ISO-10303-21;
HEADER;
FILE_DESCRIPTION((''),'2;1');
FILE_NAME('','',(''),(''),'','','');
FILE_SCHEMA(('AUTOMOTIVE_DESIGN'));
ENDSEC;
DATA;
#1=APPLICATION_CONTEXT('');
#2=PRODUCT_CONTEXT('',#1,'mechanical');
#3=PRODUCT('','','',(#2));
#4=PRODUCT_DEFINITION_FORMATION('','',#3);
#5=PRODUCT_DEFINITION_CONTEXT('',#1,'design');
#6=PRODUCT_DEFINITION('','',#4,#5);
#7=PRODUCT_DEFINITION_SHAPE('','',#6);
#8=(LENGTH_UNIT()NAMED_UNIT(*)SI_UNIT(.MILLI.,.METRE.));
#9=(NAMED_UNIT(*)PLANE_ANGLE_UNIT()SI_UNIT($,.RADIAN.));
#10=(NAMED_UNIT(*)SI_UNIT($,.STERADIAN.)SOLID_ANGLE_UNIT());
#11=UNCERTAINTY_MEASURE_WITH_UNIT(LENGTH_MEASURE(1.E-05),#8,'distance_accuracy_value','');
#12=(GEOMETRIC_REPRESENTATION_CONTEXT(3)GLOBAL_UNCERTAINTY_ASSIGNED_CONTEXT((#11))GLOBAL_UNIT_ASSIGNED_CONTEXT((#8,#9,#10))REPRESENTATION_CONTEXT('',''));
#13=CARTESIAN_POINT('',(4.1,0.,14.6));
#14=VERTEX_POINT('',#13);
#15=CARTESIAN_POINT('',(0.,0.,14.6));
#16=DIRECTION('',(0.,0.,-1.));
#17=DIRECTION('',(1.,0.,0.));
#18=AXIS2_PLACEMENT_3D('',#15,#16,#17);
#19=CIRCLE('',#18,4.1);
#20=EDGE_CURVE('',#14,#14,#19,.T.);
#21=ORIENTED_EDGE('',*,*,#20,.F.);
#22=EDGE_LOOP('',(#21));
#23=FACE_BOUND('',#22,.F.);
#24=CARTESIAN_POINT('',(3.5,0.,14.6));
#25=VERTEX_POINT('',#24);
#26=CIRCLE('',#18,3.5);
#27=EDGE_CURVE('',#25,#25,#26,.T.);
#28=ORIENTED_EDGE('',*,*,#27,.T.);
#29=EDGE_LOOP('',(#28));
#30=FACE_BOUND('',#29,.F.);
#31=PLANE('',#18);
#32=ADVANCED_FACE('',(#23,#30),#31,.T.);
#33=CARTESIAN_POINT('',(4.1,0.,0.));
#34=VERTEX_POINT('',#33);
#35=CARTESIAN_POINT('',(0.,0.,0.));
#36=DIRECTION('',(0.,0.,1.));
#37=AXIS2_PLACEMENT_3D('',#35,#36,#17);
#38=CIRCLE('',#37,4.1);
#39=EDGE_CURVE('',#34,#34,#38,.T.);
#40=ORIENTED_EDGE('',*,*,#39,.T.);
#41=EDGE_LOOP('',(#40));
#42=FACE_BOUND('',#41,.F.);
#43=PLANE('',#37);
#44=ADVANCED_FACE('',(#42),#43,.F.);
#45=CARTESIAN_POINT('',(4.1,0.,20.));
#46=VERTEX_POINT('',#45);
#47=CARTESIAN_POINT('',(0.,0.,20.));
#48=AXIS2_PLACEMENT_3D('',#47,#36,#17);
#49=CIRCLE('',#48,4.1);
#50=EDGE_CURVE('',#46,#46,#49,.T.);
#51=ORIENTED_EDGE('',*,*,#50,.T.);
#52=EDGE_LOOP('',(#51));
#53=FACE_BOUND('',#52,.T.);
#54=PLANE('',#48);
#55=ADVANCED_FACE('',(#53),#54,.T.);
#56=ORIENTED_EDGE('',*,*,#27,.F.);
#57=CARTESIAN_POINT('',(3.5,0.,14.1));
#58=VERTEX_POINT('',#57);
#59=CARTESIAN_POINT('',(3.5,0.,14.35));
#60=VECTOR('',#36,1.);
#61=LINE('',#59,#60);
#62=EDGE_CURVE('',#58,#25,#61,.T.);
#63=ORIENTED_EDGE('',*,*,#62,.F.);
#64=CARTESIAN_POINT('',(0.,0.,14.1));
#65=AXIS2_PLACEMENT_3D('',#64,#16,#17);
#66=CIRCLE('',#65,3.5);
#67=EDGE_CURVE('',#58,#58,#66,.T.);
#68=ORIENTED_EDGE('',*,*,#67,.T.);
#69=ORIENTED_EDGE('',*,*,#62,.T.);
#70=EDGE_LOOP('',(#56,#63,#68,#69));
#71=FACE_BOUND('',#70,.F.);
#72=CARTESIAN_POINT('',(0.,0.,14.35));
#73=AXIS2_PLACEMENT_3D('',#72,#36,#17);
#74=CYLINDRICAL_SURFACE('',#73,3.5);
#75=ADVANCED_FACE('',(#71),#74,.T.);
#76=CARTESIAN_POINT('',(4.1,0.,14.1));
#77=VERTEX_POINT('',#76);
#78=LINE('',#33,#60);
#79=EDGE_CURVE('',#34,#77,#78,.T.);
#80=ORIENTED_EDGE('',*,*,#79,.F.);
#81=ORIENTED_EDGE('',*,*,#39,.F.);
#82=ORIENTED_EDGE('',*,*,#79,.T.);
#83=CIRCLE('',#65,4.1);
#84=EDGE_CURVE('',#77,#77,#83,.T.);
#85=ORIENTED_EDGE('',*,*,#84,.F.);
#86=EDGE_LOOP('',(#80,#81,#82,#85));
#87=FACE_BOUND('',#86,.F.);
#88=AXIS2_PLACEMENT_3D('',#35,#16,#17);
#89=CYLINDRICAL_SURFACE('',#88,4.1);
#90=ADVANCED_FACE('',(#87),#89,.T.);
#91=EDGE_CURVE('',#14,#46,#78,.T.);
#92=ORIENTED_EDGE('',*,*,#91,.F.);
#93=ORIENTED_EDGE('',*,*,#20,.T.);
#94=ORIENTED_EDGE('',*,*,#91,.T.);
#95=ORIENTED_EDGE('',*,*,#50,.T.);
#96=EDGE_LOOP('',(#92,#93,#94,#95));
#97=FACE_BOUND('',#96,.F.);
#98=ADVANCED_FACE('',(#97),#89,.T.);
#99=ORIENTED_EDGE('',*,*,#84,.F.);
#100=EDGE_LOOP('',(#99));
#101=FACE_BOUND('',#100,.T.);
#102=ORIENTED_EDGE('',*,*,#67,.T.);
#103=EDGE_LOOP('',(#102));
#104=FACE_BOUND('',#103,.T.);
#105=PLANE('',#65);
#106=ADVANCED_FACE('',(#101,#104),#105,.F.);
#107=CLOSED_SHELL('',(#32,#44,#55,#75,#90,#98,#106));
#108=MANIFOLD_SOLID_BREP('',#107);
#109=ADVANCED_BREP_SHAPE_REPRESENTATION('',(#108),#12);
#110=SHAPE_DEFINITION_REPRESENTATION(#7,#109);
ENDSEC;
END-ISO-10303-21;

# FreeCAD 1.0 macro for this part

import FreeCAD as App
import Part
import Sketcher


def add_polygon(sketch, points):
    """Adds a closed chain of lines whose ends are joined by coincident constraints."""
    first, n = sketch.GeometryCount, len(points)
    for a, b in zip(points, points[1:] + points[:1]):
        sketch.addGeometry(Part.LineSegment(App.Vector(*a, 0), App.Vector(*b, 0)), False)
    for i in range(n):
        sketch.addConstraint(Sketcher.Constraint("Coincident", first + i, 2, first + (i + 1) % n, 1))

doc = App.newDocument("Part")
body = doc.addObject("PartDesign::Body", "Body")

# Sketch on XY plane
sketch1 = body.newObject("Sketcher::SketchObject", "Sketch")
sketch1.AttachmentSupport = (doc.getObject("XY_Plane"), [""])
sketch1.MapMode = "FlatFace"
sketch1.addGeometry(Part.Circle(App.Vector(0, 0, 0), App.Vector(0, 0, 1), 4.1), False)
sketch1.addConstraint([
    Sketcher.Constraint("Coincident", 0, 3, -1, 1),
    Sketcher.Constraint("Diameter", 0, 8.2),
])
pad1 = body.newObject("PartDesign::Pad", "Pad")
pad1.Profile = sketch1
pad1.Length = 20

# Sketch on XZ plane
sketch2 = body.newObject("Sketcher::SketchObject", "Sketch001")
sketch2.AttachmentSupport = (doc.getObject("XZ_Plane"), [""])
sketch2.MapMode = "FlatFace"
add_polygon(sketch2, [(3.5, 14.6), (3.5, 14.1), (4.1, 14.1), (4.1, 14.6)])  # lines 0-3
sketch2.addConstraint([
    Sketcher.Constraint("Vertical", 0),
    Sketcher.Constraint("Horizontal", 1),
    Sketcher.Constraint("Vertical", 2),
    Sketcher.Constraint("Horizontal", 3),
    Sketcher.Constraint("DistanceX", 1, 1, 1, 2, 0.6),
    Sketcher.Constraint("DistanceY", 0, 2, 0, 1, 0.5),
    Sketcher.Constraint("DistanceX", -1, 1, 0, 2, 3.5),
    Sketcher.Constraint("DistanceY", -1, 1, 0, 2, 14.1),
])
groove = body.newObject("PartDesign::Groove", "Groove")
groove.Profile = sketch2
groove.ReferenceAxis = (sketch2, ["V_Axis"])
groove.Angle = 360

doc.recompute()
